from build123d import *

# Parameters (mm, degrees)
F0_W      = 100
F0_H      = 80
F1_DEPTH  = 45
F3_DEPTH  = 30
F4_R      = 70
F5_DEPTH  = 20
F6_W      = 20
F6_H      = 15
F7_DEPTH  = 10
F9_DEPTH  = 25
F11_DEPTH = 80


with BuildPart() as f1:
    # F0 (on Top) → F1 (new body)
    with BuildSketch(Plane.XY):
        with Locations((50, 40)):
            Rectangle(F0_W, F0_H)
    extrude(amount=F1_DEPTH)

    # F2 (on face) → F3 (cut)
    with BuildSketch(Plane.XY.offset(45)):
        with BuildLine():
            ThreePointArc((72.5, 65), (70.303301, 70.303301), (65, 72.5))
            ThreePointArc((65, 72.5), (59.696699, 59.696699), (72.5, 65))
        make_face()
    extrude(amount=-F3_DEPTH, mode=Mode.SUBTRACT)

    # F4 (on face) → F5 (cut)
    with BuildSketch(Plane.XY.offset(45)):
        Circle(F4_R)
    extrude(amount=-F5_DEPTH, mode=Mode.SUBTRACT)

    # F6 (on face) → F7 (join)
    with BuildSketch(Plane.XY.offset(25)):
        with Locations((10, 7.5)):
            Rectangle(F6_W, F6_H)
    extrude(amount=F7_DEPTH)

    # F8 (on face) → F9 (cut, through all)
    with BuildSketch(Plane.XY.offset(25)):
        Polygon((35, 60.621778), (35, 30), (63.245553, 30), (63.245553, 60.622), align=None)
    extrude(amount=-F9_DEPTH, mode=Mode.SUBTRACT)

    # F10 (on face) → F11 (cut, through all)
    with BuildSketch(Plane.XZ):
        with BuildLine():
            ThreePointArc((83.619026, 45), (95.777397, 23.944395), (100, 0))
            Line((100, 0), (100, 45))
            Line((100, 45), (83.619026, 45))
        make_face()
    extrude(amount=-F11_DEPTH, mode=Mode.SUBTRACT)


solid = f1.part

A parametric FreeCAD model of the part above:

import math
import FreeCAD as App
import Part
import Sketcher
from FreeCAD import Vector
Q = App.Units.Quantity

doc = App.newDocument("Part")
body = doc.addObject("PartDesign::Body", "Body")

# Sketch on XY plane
sketch1 = body.newObject("Sketcher::SketchObject", "Sketch")
sketch1.AttachmentSupport = (doc.getObject("XY_Plane"), [""])
sketch1.MapMode = "FlatFace"
sketch1.addGeometry([
    Part.LineSegment(Vector(0, 80, 0), Vector(0, 0, 0)),
    Part.LineSegment(Vector(0, 0, 0), Vector(100, 0, 0)),
    Part.LineSegment(Vector(100, 0, 0), Vector(100, 80, 0)),
    Part.LineSegment(Vector(100, 80, 0), Vector(0, 80, 0)),
], False)
sketch1.addConstraint([
    Sketcher.Constraint("Coincident", 0, 2, 1, 1),
    Sketcher.Constraint("Coincident", 1, 2, 2, 1),
    Sketcher.Constraint("Coincident", 2, 2, 3, 1),
    Sketcher.Constraint("Coincident", 3, 2, 0, 1),
    Sketcher.Constraint("Vertical", 0),
    Sketcher.Constraint("Horizontal", 1),
    Sketcher.Constraint("Vertical", 2),
    Sketcher.Constraint("Horizontal", 3),
    Sketcher.Constraint("Coincident", 0, 2, -1, 1),
    Sketcher.Constraint("DistanceX", 1, 1, 1, 2, Q("100 mm")),
    Sketcher.Constraint("DistanceY", 0, 2, 0, 1, Q("80 mm")),
])
pad1 = body.newObject("PartDesign::Pad", "Pad")
pad1.Profile = sketch1
pad1.Length = 45

# Sketch on XY plane
sketch2 = body.newObject("Sketcher::SketchObject", "Sketch001")
sketch2.AttachmentSupport = (doc.getObject("XY_Plane"), [""])
sketch2.MapMode = "FlatFace"
sketch2.AttachmentOffset = App.Placement(Vector(0, 0, 45), App.Rotation())
sketch2.addGeometry([
    Part.ArcOfCircle(Part.Circle(Vector(65, 65, 0), Vector(0, 0, 1), 7), math.radians(0), math.radians(90)),
    Part.ArcOfCircle(Part.Circle(Vector(65, 65, 0), Vector(0, 0, 1), 8), math.radians(90), math.radians(360)),
], False)
sketch2.addConstraint([
    Sketcher.Constraint("Tangent", 0, 1, 1, 2),
    Sketcher.Constraint("Coincident", 1, 1, 0, 2),
    Sketcher.Constraint("Horizontal", 1, 3, 0, 1),
    Sketcher.Constraint("Vertical", 0, 3, 1, 1),
    Sketcher.Constraint("Radius", 0, Q("7.5 mm")),
    Sketcher.Constraint("DistanceX", -1, 1, 0, 3, Q("65 mm")),
    Sketcher.Constraint("DistanceY", -1, 1, 0, 3, Q("65 mm")),
])
pocket1 = body.newObject("PartDesign::Pocket", "Pocket")
pocket1.Profile = sketch2
pocket1.Length = 30

# Sketch on XY plane
sketch3 = body.newObject("Sketcher::SketchObject", "Sketch002")
sketch3.AttachmentSupport = (doc.getObject("XY_Plane"), [""])
sketch3.MapMode = "FlatFace"
sketch3.AttachmentOffset = App.Placement(Vector(0, 0, 45), App.Rotation())
sketch3.addGeometry(Part.Circle(Vector(0, 0, 0), Vector(0, 0, 1), 70), False)
sketch3.addConstraint([
    Sketcher.Constraint("Coincident", 0, 3, -1, 1),
    Sketcher.Constraint("Diameter", 0, Q("140 mm")),
])
pocket2 = body.newObject("PartDesign::Pocket", "Pocket001")
pocket2.Profile = sketch3
pocket2.Length = 20

# Sketch on XY plane
sketch4 = body.newObject("Sketcher::SketchObject", "Sketch003")
sketch4.AttachmentSupport = (doc.getObject("XY_Plane"), [""])
sketch4.MapMode = "FlatFace"
sketch4.AttachmentOffset = App.Placement(Vector(0, 0, 25), App.Rotation())
sketch4.addGeometry([
    Part.LineSegment(Vector(0, 15, 0), Vector(0, 0, 0)),
    Part.LineSegment(Vector(0, 0, 0), Vector(20, 0, 0)),
    Part.LineSegment(Vector(20, 0, 0), Vector(20, 15, 0)),
    Part.LineSegment(Vector(20, 15, 0), Vector(0, 15, 0)),
], False)
sketch4.addConstraint([
    Sketcher.Constraint("Coincident", 0, 2, 1, 1),
    Sketcher.Constraint("Coincident", 1, 2, 2, 1),
    Sketcher.Constraint("Coincident", 2, 2, 3, 1),
    Sketcher.Constraint("Coincident", 3, 2, 0, 1),
    Sketcher.Constraint("Vertical", 0),
    Sketcher.Constraint("Horizontal", 1),
    Sketcher.Constraint("Vertical", 2),
    Sketcher.Constraint("Horizontal", 3),
    Sketcher.Constraint("Coincident", 0, 2, -1, 1),
    Sketcher.Constraint("DistanceX", 1, 1, 1, 2, Q("20 mm")),
    Sketcher.Constraint("DistanceY", 0, 2, 0, 1, Q("15 mm")),
])
pad2 = body.newObject("PartDesign::Pad", "Pad001")
pad2.Profile = sketch4
pad2.Length = 10

# Sketch on XY plane
sketch5 = body.newObject("Sketcher::SketchObject", "Sketch004")
sketch5.AttachmentSupport = (doc.getObject("XY_Plane"), [""])
sketch5.MapMode = "FlatFace"
sketch5.AttachmentOffset = App.Placement(Vector(0, 0, 25), App.Rotation())
sketch5.addGeometry([
    Part.LineSegment(Vector(35, 61, 0), Vector(35, 30, 0)),
    Part.LineSegment(Vector(35, 30, 0), Vector(63, 30, 0)),
    Part.LineSegment(Vector(63, 30, 0), Vector(63, 61, 0)),
    Part.LineSegment(Vector(63, 61, 0), Vector(35, 61, 0)),
], False)
sketch5.addConstraint([
    Sketcher.Constraint("Coincident", 0, 2, 1, 1),
    Sketcher.Constraint("Coincident", 1, 2, 2, 1),
    Sketcher.Constraint("Coincident", 2, 2, 3, 1),
    Sketcher.Constraint("Coincident", 3, 2, 0, 1),
    Sketcher.Constraint("Vertical", 0),
    Sketcher.Constraint("Horizontal", 1),
    Sketcher.Constraint("Vertical", 2),
    Sketcher.Constraint("DistanceX", -1, 1, 0, 2, Q("35 mm")),
    Sketcher.Constraint("DistanceY", -1, 1, 0, 2, Q("30 mm")),
    Sketcher.Constraint("DistanceY", 2, 1, 2, 2, Q("30.622 mm")),
    Sketcher.Constraint("DistanceX", 1, 1, 1, 2, Q("28.245553 mm")),
    Sketcher.Constraint("DistanceY", 0, 2, 0, 1, Q("30.621778 mm")),
])
pocket3 = body.newObject("PartDesign::Pocket", "Pocket002")
pocket3.Profile = sketch5
pocket3.Type = "ThroughAll"

# Sketch on XZ plane
sketch6 = body.newObject("Sketcher::SketchObject", "Sketch005")
sketch6.AttachmentSupport = (doc.getObject("XZ_Plane"), [""])
sketch6.MapMode = "FlatFace"
sketch6.addGeometry([
    Part.ArcOfCircle(Part.Circle(Vector(30, 0, 0), Vector(0, 0, 1), 70), math.radians(0), math.radians(40)),
    Part.LineSegment(Vector(100, 0, 0), Vector(100, 45, 0)),
    Part.LineSegment(Vector(100, 45, 0), Vector(84, 45, 0)),
], False)
sketch6.addConstraint([
    Sketcher.Constraint("Tangent", 0, 1, 1, 1),
    Sketcher.Constraint("Coincident", 1, 2, 2, 1),
    Sketcher.Constraint("Coincident", 2, 2, 0, 2),
    Sketcher.Constraint("Vertical", 1),
    Sketcher.Constraint("Horizontal", 2),
    Sketcher.Constraint("PointOnObject", 0, 3, -1),
    Sketcher.Constraint("DistanceY", 1, 1, 1, 2, Q("45 mm")),
    Sketcher.Constraint("DistanceX", -1, 1, 0, 1, Q("100 mm")),
    Sketcher.Constraint("Radius", 0, Q("69.999996 mm")),
])
pocket4 = body.newObject("PartDesign::Pocket", "Pocket003")
pocket4.Profile = sketch6
pocket4.Type = "ThroughAll"

doc.recompute()
